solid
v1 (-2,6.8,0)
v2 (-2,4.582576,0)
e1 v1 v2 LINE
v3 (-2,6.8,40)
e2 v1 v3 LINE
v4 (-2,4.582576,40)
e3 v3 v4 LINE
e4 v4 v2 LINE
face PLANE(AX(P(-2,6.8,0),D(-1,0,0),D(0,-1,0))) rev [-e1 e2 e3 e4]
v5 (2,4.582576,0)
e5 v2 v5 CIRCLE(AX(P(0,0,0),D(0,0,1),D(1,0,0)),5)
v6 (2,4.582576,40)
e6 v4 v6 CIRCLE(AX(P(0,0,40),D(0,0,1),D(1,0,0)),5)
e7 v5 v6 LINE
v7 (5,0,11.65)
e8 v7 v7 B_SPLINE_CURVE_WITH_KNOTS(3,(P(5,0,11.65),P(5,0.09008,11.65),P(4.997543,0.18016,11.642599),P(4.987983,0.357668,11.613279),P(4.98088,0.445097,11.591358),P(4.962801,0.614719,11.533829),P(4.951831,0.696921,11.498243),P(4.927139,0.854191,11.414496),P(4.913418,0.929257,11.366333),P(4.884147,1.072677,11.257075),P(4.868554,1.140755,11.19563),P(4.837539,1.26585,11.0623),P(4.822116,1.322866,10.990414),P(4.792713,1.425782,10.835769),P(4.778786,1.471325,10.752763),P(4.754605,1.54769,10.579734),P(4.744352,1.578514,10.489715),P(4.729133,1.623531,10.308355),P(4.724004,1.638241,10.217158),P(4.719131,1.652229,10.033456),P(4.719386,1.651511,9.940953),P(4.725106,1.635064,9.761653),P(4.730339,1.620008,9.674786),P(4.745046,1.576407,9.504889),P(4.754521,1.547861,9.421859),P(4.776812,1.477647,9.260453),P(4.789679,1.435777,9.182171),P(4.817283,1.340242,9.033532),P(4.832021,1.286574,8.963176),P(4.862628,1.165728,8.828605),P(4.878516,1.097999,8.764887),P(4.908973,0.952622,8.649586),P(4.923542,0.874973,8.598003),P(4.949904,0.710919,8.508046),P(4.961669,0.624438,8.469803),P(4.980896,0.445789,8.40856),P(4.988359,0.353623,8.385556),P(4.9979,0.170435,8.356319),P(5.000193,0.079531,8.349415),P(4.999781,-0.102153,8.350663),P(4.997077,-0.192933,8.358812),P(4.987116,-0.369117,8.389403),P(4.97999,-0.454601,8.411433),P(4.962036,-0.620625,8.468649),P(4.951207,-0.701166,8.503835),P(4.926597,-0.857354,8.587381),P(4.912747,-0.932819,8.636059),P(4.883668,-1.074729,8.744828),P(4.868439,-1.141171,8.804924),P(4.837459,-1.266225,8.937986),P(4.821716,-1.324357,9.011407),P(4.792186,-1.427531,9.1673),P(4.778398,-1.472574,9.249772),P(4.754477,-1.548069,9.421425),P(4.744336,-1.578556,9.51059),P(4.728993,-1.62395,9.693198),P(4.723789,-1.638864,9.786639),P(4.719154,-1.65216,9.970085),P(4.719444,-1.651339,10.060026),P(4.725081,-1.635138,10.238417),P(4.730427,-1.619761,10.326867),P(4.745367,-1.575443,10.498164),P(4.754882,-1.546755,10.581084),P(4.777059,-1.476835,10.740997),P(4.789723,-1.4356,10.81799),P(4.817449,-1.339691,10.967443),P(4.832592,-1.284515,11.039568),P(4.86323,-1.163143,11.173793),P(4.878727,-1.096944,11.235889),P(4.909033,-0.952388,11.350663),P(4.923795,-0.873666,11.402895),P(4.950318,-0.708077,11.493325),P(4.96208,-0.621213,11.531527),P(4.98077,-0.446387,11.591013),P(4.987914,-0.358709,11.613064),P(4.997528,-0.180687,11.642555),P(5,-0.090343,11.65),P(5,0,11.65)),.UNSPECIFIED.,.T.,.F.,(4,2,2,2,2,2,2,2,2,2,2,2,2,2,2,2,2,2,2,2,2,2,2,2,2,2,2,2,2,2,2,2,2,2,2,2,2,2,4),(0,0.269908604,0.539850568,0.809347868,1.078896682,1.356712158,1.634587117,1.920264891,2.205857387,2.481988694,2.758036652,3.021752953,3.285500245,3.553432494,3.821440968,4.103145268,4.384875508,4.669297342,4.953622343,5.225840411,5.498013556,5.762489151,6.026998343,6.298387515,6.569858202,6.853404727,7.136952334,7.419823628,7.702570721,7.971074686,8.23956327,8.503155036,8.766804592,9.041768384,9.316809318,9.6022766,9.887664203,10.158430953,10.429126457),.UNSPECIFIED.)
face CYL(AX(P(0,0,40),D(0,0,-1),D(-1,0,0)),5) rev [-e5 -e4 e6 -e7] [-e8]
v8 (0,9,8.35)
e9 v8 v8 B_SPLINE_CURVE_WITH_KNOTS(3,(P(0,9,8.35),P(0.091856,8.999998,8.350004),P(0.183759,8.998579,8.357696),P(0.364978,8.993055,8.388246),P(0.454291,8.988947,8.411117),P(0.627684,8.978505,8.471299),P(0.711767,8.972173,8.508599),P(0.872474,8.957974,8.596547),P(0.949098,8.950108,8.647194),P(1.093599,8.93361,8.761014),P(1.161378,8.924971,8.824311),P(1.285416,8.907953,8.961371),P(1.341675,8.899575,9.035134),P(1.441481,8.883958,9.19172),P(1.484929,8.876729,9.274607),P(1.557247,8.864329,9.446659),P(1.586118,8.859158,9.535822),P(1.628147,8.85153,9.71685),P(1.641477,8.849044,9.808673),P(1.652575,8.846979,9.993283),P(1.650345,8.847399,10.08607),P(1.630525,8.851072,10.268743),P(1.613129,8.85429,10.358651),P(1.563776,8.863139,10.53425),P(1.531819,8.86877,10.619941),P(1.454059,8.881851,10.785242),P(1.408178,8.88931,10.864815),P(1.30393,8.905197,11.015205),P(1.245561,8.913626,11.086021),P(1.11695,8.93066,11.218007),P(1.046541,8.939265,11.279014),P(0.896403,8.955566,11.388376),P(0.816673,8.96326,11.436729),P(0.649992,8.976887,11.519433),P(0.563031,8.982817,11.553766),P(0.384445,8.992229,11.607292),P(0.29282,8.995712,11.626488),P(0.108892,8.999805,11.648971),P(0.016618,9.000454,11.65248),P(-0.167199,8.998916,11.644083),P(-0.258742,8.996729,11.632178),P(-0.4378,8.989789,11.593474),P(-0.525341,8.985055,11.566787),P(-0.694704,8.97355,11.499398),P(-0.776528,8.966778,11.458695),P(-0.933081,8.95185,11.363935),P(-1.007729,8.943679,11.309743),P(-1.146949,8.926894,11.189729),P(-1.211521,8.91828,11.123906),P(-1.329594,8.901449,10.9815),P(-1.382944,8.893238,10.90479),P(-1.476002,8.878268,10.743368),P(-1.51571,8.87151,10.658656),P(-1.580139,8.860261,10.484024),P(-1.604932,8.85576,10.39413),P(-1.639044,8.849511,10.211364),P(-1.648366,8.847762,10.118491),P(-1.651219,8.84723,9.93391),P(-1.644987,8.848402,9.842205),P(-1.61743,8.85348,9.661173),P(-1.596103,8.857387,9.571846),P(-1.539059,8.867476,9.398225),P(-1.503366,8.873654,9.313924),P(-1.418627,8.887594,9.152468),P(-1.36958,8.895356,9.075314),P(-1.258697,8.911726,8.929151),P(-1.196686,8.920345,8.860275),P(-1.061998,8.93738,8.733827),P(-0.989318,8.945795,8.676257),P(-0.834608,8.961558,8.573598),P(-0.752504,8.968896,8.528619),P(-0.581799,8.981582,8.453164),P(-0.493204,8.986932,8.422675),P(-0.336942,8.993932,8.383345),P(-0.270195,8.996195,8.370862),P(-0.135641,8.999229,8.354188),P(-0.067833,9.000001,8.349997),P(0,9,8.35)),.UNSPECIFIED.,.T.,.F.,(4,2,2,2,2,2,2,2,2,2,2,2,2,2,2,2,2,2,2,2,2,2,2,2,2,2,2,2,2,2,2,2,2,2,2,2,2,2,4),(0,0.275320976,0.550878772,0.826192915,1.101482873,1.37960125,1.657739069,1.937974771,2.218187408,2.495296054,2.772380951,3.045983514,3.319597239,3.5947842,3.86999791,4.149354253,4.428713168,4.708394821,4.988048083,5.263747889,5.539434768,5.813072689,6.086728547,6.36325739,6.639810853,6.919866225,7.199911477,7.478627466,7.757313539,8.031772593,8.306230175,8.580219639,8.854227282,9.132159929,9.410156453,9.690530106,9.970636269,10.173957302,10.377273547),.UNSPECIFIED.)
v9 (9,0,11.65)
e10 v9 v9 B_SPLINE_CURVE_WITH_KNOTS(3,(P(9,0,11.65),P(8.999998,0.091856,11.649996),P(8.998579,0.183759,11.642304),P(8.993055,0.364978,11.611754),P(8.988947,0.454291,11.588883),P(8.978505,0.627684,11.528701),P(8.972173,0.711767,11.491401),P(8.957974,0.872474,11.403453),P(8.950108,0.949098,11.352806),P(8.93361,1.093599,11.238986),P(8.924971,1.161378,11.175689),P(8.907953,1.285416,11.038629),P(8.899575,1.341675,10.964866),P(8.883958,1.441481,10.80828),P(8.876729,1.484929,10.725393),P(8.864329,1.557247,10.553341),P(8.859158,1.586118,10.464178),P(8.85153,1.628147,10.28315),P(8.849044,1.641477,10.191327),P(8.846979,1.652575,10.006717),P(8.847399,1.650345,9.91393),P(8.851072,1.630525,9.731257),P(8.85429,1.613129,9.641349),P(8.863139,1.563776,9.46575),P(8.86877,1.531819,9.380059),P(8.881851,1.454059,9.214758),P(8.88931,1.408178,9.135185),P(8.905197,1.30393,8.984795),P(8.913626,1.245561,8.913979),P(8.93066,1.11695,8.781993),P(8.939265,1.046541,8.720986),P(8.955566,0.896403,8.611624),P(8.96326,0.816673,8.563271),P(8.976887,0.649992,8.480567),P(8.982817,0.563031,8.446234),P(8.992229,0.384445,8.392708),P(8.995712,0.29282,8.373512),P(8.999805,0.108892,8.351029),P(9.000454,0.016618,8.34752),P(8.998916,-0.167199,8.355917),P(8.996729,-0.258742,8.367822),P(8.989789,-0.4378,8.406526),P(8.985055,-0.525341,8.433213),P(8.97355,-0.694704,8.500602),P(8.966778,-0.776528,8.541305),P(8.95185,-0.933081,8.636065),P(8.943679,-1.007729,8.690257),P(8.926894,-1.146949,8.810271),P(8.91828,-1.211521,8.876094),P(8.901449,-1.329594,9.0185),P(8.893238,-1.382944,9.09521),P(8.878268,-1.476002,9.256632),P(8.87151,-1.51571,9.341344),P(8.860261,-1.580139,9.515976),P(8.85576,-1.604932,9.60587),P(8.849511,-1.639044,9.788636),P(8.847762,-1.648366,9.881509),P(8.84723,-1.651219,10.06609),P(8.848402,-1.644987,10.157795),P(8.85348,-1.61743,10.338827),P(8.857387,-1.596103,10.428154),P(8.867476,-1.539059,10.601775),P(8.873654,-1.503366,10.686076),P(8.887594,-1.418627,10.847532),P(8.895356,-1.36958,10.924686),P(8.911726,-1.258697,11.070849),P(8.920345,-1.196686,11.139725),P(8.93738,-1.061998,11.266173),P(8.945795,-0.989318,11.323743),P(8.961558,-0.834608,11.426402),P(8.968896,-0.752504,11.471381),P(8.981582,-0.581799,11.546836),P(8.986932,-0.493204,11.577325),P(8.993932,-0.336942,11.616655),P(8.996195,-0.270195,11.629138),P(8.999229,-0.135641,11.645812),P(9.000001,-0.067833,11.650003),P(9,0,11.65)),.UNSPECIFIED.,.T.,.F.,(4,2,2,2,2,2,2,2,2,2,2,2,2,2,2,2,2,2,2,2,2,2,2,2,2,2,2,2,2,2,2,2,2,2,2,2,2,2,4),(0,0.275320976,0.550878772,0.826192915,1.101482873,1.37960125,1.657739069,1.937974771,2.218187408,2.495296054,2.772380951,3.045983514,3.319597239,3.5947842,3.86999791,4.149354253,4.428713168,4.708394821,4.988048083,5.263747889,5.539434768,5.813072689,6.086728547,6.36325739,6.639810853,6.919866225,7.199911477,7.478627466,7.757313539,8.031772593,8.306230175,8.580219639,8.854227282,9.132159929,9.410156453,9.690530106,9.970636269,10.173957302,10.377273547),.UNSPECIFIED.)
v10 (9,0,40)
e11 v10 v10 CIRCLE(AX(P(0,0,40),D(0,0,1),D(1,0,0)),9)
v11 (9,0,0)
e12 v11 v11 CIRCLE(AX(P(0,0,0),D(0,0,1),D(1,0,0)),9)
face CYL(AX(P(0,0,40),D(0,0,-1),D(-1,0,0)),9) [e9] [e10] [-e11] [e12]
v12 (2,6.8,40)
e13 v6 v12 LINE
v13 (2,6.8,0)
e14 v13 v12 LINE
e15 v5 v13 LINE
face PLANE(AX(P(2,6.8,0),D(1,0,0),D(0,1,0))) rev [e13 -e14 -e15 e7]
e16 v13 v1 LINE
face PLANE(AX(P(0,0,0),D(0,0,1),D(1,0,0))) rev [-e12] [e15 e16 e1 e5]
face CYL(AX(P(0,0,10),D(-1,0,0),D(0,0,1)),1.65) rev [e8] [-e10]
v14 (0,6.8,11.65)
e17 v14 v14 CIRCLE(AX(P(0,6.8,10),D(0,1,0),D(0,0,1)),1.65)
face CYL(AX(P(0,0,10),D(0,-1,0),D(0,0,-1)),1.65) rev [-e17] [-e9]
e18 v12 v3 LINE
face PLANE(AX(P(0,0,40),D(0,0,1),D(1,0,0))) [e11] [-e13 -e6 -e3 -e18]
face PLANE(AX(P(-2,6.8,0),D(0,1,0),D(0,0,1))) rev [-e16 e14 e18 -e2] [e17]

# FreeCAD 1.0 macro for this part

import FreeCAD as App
import Part
import Sketcher

V = App.Vector
Q = App.Units.Quantity


def add_polygon(sketch, points):
    """Adds a closed chain of lines whose ends are joined by coincident constraints."""
    first, n = sketch.GeometryCount, len(points)
    for a, b in zip(points, points[1:] + points[:1]):
        sketch.addGeometry(Part.LineSegment(App.Vector(*a, 0), App.Vector(*b, 0)), False)
    for i in range(n):
        sketch.addConstraint(Sketcher.Constraint("Coincident", first + i, 2, first + (i + 1) % n, 1))

doc = App.newDocument("Part")
body = doc.addObject("PartDesign::Body", "Body")

# Sketch on XY plane
sketch1 = doc.addObject("Sketcher::SketchObject", "Sketch")
body.addObject(sketch1)
sketch1.AttachmentSupport = (doc.XY_Plane, [""])
sketch1.MapMode = "FlatFace"
sketch1.addGeometry([
    Part.Circle(V(0, 0, 0), V(0, 0, 1), 9),
    Part.Circle(V(0, 0, 0), V(0, 0, 1), 5),
], False)
sketch1.addConstraint([
    Sketcher.Constraint("Coincident", 0, 3, -1, 1),
    Sketcher.Constraint("Coincident", 1, 3, -1, 1),
    Sketcher.Constraint("Diameter", 0, Q("18 mm")),
    Sketcher.Constraint("Diameter", 1, Q("10 mm")),
])
pad1 = doc.addObject("PartDesign::Pad", "Pad")
body.addObject(pad1)
pad1.Profile = sketch1
pad1.Length = 40

# Sketch on XY plane
sketch2 = doc.addObject("Sketcher::SketchObject", "Sketch001")
body.addObject(sketch2)
sketch2.AttachmentSupport = (doc.XY_Plane, [""])
sketch2.MapMode = "FlatFace"
sketch2.AttachmentOffset = App.Placement(V(0, 0, 40), App.Rotation())
add_polygon(sketch2, [(-2, 6.8), (-2, 3.497018), (2, 3.497018), (2, 6.8)])  # lines 0-3
sketch2.addConstraint([
    Sketcher.Constraint("Vertical", 0),
    Sketcher.Constraint("Horizontal", 1),
    Sketcher.Constraint("Vertical", 2),
    Sketcher.Constraint("Horizontal", 3),
    Sketcher.Constraint("DistanceX", 1, 1, 1, 2, Q("4 mm")),
    Sketcher.Constraint("DistanceX", 0, 2, -1, 1, Q("2 mm")),
    Sketcher.Constraint("DistanceY", -1, 1, 2, 2, Q("6.8 mm")),
    Sketcher.Constraint("DistanceY", 0, 2, 0, 1, Q("3.302982 mm")),
])
pocket1 = doc.addObject("PartDesign::Pocket", "Pocket")
body.addObject(pocket1)
pocket1.Profile = sketch2
pocket1.Type = "ThroughAll"

# Sketch on YZ plane
sketch3 = doc.addObject("Sketcher::SketchObject", "Sketch002")
body.addObject(sketch3)
sketch3.AttachmentSupport = (doc.YZ_Plane, [""])
sketch3.MapMode = "FlatFace"
add_polygon(sketch3, [(9, 10), (0, 10), (0, 8.35), (9, 8.35)])  # lines 0-3
sketch3.addGeometry(Part.LineSegment(V(0, 10, 0), V(9, 10, 0)), True)  # axis
sketch3.addConstraint([
    Sketcher.Constraint("Horizontal", 0),
    Sketcher.Constraint("Vertical", 1),
    Sketcher.Constraint("Horizontal", 2),
    Sketcher.Constraint("Vertical", 3),
    Sketcher.Constraint("Horizontal", 4),
    Sketcher.Constraint("Coincident", 4, 1, 0, 2),
    Sketcher.Constraint("PointOnObject", 0, 2, -2),
    Sketcher.Constraint("Vertical", 2, 2, 4, 2),
    Sketcher.Constraint("DistanceX", 0, 2, 0, 1, Q("9 mm")),
    Sketcher.Constraint("DistanceY", -1, 1, 0, 2, Q("10 mm")),
    Sketcher.Constraint("DistanceY", 1, 2, 1, 1, Q("1.65 mm")),
])
groove = doc.addObject("PartDesign::Groove", "Groove")
body.addObject(groove)
groove.Profile = sketch3
groove.ReferenceAxis = (sketch3, ["Axis0"])
groove.Angle = 360
doc.recompute()

polarpattern = doc.addObject("PartDesign::PolarPattern", "PolarPattern")
body.addObject(polarpattern)
polarpattern.Originals = [groove]
polarpattern.Axis = (doc.Z_Axis, [""])
polarpattern.Angle = 90
polarpattern.Occurrences = 2
polarpattern.Reversed = True
body.Tip = polarpattern

doc.recompute()
